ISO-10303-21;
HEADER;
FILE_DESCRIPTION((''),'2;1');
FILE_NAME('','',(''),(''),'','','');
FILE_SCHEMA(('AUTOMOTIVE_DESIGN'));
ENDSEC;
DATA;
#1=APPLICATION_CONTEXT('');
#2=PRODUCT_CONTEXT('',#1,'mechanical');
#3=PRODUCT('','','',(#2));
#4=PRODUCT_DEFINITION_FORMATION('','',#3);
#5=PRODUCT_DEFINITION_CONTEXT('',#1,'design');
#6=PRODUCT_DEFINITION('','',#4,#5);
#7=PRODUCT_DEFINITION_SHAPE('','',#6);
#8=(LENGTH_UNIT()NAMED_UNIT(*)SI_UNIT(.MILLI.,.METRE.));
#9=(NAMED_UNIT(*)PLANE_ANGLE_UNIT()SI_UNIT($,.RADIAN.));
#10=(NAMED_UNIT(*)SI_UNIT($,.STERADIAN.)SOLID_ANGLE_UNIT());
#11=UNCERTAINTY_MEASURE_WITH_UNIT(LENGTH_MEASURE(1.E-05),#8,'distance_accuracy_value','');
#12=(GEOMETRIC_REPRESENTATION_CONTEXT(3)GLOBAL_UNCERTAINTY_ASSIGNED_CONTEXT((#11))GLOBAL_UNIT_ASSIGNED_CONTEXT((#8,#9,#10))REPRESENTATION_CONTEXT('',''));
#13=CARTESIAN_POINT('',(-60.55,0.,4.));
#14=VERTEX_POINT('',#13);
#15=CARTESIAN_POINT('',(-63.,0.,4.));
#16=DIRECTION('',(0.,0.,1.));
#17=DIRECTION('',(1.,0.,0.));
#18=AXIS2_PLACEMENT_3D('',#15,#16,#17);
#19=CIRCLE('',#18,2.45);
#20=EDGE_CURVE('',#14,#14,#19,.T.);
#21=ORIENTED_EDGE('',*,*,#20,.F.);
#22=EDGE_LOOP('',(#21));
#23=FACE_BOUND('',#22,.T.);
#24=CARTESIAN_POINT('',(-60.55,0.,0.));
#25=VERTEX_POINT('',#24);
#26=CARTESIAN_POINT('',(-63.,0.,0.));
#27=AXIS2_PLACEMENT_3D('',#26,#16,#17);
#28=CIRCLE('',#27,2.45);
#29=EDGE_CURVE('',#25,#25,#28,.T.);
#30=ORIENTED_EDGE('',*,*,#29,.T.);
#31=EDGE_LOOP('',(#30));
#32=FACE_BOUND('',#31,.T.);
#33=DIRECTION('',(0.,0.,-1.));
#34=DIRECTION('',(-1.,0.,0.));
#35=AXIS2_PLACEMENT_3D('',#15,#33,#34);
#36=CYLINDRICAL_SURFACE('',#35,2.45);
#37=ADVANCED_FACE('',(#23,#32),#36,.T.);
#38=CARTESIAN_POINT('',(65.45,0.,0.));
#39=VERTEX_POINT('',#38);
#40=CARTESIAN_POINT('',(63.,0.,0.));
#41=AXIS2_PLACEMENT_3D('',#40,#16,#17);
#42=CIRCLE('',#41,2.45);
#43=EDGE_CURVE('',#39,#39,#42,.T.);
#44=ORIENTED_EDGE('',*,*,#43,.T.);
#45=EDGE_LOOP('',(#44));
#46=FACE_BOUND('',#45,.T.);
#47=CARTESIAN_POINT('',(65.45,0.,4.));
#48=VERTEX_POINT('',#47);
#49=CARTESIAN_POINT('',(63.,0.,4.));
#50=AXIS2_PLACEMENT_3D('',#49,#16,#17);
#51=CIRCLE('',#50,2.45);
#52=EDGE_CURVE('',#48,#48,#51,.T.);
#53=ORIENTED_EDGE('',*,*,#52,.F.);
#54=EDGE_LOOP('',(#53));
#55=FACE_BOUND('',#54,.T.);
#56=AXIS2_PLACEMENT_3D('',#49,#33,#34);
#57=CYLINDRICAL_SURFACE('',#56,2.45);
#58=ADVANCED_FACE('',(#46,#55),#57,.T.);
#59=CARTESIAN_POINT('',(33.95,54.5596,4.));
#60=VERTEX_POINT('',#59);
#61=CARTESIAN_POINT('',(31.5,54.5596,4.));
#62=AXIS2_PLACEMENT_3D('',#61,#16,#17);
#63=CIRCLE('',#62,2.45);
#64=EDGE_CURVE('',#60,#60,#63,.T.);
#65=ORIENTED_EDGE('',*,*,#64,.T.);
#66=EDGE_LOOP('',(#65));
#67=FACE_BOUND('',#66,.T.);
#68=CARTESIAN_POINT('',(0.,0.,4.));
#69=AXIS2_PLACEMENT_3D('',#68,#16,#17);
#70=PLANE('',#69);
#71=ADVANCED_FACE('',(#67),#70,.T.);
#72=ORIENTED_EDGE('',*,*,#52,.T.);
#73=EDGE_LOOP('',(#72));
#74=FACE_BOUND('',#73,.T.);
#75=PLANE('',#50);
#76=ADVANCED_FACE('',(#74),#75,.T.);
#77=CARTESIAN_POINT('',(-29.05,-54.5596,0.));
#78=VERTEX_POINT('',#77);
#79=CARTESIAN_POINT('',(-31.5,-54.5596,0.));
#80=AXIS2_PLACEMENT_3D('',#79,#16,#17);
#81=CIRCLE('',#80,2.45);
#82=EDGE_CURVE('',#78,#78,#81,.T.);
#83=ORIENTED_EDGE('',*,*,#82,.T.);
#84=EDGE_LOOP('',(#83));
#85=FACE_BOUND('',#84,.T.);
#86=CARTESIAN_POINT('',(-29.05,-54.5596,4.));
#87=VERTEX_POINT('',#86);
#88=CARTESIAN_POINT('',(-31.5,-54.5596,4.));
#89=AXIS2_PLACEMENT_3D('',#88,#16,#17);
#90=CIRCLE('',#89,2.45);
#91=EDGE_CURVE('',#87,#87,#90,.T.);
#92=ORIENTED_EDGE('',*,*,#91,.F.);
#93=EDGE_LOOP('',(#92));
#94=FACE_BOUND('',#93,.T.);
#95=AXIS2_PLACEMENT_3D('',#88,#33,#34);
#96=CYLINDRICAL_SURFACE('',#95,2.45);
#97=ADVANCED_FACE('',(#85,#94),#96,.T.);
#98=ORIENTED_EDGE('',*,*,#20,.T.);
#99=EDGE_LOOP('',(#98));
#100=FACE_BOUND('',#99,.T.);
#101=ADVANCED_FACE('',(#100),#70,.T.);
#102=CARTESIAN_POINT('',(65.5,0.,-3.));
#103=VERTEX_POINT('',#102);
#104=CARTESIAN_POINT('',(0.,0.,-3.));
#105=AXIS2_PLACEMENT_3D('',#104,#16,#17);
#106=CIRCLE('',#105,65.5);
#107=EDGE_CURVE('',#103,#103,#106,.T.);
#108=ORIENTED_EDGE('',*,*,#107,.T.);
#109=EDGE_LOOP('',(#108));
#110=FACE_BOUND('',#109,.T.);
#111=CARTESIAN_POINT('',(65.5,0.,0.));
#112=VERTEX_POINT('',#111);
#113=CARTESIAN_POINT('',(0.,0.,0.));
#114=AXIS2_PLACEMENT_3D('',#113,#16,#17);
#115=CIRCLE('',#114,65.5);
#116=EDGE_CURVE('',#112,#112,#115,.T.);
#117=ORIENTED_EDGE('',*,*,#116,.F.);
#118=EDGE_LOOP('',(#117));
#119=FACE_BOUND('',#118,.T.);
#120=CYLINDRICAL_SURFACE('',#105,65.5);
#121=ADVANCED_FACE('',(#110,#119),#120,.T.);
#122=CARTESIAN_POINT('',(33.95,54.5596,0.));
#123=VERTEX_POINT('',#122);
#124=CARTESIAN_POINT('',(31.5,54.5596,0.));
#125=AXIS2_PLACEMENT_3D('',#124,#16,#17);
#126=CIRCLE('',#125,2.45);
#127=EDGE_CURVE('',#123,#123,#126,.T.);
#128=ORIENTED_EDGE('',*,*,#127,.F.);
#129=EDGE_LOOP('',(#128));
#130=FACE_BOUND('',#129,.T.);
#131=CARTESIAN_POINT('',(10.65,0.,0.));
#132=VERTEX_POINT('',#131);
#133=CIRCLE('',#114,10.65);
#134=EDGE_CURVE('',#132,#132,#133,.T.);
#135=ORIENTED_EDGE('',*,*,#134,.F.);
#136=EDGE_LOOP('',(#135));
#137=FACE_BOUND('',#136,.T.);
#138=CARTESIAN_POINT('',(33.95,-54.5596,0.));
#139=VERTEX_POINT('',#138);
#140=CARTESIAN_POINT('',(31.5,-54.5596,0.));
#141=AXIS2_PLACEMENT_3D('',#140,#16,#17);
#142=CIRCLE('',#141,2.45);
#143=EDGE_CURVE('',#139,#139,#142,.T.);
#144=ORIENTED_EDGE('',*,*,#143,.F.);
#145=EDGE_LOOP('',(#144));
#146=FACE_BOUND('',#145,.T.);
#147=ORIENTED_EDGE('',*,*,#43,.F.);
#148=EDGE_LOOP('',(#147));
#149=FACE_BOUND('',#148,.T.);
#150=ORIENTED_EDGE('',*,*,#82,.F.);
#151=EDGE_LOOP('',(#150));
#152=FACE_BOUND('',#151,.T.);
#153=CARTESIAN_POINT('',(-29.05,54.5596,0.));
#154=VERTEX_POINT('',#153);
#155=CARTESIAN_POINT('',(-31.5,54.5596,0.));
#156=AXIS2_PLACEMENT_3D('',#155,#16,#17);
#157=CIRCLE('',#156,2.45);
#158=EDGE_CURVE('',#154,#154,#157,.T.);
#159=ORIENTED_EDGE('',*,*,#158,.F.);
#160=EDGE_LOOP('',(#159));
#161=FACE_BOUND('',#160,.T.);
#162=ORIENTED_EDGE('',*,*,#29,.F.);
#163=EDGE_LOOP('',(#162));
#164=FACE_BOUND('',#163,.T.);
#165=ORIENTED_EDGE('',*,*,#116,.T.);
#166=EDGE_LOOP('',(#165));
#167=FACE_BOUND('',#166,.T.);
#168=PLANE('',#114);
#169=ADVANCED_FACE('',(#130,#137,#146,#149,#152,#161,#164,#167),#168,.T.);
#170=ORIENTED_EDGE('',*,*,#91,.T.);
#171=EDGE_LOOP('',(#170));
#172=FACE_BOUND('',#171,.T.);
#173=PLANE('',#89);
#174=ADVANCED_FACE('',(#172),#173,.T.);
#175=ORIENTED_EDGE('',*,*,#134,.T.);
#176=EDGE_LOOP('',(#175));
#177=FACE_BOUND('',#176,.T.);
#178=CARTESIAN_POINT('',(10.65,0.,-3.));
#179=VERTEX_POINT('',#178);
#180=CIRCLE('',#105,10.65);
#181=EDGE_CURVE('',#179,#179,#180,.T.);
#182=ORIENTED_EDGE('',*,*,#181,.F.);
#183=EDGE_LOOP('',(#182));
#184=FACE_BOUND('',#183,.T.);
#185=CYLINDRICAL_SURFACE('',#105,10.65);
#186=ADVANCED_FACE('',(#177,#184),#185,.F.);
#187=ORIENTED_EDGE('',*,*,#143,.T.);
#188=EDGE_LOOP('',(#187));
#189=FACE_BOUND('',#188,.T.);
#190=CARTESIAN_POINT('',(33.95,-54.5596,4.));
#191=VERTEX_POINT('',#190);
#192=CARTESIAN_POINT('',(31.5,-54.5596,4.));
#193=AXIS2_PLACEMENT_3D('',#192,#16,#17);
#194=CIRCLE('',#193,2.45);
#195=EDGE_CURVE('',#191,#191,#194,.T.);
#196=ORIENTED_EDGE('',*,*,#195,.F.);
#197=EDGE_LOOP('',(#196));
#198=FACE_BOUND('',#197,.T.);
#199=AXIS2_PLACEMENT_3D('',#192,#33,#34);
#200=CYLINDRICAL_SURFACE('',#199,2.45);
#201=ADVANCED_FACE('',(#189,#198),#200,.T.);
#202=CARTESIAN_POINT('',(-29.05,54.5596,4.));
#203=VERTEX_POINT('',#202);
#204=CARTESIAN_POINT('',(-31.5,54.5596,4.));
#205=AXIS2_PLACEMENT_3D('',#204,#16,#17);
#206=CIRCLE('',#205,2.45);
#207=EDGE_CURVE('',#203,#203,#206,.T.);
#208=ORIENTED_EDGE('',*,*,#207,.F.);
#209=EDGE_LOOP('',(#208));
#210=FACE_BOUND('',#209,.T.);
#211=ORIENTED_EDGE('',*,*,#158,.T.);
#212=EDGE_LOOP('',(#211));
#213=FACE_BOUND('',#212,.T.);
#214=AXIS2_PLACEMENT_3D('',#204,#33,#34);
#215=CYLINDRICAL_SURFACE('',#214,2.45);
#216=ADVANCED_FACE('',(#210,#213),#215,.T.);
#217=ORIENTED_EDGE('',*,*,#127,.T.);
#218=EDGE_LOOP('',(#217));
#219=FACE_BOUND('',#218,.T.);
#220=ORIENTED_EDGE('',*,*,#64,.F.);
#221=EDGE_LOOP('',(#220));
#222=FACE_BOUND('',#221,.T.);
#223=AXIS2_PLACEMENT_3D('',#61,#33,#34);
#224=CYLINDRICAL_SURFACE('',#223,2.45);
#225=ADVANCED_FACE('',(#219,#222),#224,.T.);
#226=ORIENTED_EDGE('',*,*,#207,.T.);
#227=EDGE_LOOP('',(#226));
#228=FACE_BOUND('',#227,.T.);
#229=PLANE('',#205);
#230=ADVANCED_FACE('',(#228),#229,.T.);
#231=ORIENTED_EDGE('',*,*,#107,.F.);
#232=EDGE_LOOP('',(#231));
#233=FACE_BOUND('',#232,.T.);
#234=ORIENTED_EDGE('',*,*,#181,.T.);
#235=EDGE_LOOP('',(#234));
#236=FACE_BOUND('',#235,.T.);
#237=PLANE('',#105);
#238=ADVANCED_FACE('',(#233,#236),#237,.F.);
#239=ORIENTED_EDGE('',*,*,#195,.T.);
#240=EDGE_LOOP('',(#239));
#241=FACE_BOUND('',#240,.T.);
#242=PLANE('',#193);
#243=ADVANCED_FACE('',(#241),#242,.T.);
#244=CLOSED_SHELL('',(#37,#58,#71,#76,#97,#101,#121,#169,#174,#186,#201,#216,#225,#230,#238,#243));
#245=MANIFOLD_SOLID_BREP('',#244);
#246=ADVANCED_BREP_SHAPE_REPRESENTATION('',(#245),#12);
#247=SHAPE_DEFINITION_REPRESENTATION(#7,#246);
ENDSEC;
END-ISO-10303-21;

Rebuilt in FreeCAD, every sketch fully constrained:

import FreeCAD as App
import Part
import Sketcher

doc = App.newDocument("Part")
body = doc.addObject("PartDesign::Body", "Body")

sketch1 = doc.addObject("Sketcher::SketchObject", "Sketch")
body.addObject(sketch1)
sketch1.AttachmentSupport = (doc.XY_Plane, [""])
sketch1.MapMode = "FlatFace"
sketch1.addGeometry(Part.Circle(App.Vector(0, 0, 0), App.Vector(0, 0, 1), 65.5), False)
sketch1.addConstraint([
    Sketcher.Constraint("Coincident", 0, 3, -1, 1),
    Sketcher.Constraint("Diameter", 0, 131.0),
])
pad1 = doc.addObject("PartDesign::Pad", "Pad")
body.addObject(pad1)
pad1.Profile = sketch1
pad1.Length = 3
pad1.Reversed = True

sketch2 = doc.addObject("Sketcher::SketchObject", "Sketch001")
body.addObject(sketch2)
sketch2.AttachmentSupport = (doc.XY_Plane, [""])
sketch2.MapMode = "FlatFace"
sketch2.addGeometry([
    Part.Circle(App.Vector(-63, 0, 0), App.Vector(0, 0, 1), 2.45),
    Part.Circle(App.Vector(-31.5, 54.5596, 0), App.Vector(0, 0, 1), 2.45),
    Part.Circle(App.Vector(31.5, 54.5596, 0), App.Vector(0, 0, 1), 2.45),
    Part.Circle(App.Vector(63, 0, 0), App.Vector(0, 0, 1), 2.45),
    Part.Circle(App.Vector(31.5, -54.5596, 0), App.Vector(0, 0, 1), 2.45),
    Part.Circle(App.Vector(-31.5, -54.5596, 0), App.Vector(0, 0, 1), 2.45),
], False)
sketch2.addConstraint([
    Sketcher.Constraint("Equal", 0, 1),
    Sketcher.Constraint("Equal", 1, 2),
    Sketcher.Constraint("Equal", 2, 3),
    Sketcher.Constraint("Equal", 3, 4),
    Sketcher.Constraint("Equal", 4, 5),
    Sketcher.Constraint("Symmetric", 0, 3, 3, 3, -1, 1),
    Sketcher.Constraint("Symmetric", 1, 3, 4, 3, -1, 1),
    Sketcher.Constraint("Symmetric", 2, 3, 5, 3, -1, 1),
    Sketcher.Constraint("Symmetric", 1, 3, 2, 3, -2),
    Sketcher.Constraint("PointOnObject", 0, 3, -1),
    Sketcher.Constraint("Diameter", 0, 4.9),
    Sketcher.Constraint("DistanceX", 0, 3, -1, 1, 63.0),
    Sketcher.Constraint("DistanceX", 1, 3, 2, 3, 63.0),
    Sketcher.Constraint("DistanceY", -1, 1, 1, 3, 54.5596),
])
pad2 = doc.addObject("PartDesign::Pad", "Pad001")
body.addObject(pad2)
pad2.Profile = sketch2
pad2.Length = 4

sketch3 = doc.addObject("Sketcher::SketchObject", "Sketch002")
body.addObject(sketch3)
sketch3.AttachmentSupport = (doc.XY_Plane, [""])
sketch3.MapMode = "FlatFace"
sketch3.addGeometry(Part.Circle(App.Vector(0, 0, 0), App.Vector(0, 0, 1), 10.65), False)
sketch3.addConstraint([
    Sketcher.Constraint("Coincident", 0, 3, -1, 1),
    Sketcher.Constraint("Diameter", 0, 21.3),
])
pocket1 = doc.addObject("PartDesign::Pocket", "Pocket")
body.addObject(pocket1)
pocket1.Profile = sketch3
pocket1.Type = "ThroughAll"

doc.recompute()
